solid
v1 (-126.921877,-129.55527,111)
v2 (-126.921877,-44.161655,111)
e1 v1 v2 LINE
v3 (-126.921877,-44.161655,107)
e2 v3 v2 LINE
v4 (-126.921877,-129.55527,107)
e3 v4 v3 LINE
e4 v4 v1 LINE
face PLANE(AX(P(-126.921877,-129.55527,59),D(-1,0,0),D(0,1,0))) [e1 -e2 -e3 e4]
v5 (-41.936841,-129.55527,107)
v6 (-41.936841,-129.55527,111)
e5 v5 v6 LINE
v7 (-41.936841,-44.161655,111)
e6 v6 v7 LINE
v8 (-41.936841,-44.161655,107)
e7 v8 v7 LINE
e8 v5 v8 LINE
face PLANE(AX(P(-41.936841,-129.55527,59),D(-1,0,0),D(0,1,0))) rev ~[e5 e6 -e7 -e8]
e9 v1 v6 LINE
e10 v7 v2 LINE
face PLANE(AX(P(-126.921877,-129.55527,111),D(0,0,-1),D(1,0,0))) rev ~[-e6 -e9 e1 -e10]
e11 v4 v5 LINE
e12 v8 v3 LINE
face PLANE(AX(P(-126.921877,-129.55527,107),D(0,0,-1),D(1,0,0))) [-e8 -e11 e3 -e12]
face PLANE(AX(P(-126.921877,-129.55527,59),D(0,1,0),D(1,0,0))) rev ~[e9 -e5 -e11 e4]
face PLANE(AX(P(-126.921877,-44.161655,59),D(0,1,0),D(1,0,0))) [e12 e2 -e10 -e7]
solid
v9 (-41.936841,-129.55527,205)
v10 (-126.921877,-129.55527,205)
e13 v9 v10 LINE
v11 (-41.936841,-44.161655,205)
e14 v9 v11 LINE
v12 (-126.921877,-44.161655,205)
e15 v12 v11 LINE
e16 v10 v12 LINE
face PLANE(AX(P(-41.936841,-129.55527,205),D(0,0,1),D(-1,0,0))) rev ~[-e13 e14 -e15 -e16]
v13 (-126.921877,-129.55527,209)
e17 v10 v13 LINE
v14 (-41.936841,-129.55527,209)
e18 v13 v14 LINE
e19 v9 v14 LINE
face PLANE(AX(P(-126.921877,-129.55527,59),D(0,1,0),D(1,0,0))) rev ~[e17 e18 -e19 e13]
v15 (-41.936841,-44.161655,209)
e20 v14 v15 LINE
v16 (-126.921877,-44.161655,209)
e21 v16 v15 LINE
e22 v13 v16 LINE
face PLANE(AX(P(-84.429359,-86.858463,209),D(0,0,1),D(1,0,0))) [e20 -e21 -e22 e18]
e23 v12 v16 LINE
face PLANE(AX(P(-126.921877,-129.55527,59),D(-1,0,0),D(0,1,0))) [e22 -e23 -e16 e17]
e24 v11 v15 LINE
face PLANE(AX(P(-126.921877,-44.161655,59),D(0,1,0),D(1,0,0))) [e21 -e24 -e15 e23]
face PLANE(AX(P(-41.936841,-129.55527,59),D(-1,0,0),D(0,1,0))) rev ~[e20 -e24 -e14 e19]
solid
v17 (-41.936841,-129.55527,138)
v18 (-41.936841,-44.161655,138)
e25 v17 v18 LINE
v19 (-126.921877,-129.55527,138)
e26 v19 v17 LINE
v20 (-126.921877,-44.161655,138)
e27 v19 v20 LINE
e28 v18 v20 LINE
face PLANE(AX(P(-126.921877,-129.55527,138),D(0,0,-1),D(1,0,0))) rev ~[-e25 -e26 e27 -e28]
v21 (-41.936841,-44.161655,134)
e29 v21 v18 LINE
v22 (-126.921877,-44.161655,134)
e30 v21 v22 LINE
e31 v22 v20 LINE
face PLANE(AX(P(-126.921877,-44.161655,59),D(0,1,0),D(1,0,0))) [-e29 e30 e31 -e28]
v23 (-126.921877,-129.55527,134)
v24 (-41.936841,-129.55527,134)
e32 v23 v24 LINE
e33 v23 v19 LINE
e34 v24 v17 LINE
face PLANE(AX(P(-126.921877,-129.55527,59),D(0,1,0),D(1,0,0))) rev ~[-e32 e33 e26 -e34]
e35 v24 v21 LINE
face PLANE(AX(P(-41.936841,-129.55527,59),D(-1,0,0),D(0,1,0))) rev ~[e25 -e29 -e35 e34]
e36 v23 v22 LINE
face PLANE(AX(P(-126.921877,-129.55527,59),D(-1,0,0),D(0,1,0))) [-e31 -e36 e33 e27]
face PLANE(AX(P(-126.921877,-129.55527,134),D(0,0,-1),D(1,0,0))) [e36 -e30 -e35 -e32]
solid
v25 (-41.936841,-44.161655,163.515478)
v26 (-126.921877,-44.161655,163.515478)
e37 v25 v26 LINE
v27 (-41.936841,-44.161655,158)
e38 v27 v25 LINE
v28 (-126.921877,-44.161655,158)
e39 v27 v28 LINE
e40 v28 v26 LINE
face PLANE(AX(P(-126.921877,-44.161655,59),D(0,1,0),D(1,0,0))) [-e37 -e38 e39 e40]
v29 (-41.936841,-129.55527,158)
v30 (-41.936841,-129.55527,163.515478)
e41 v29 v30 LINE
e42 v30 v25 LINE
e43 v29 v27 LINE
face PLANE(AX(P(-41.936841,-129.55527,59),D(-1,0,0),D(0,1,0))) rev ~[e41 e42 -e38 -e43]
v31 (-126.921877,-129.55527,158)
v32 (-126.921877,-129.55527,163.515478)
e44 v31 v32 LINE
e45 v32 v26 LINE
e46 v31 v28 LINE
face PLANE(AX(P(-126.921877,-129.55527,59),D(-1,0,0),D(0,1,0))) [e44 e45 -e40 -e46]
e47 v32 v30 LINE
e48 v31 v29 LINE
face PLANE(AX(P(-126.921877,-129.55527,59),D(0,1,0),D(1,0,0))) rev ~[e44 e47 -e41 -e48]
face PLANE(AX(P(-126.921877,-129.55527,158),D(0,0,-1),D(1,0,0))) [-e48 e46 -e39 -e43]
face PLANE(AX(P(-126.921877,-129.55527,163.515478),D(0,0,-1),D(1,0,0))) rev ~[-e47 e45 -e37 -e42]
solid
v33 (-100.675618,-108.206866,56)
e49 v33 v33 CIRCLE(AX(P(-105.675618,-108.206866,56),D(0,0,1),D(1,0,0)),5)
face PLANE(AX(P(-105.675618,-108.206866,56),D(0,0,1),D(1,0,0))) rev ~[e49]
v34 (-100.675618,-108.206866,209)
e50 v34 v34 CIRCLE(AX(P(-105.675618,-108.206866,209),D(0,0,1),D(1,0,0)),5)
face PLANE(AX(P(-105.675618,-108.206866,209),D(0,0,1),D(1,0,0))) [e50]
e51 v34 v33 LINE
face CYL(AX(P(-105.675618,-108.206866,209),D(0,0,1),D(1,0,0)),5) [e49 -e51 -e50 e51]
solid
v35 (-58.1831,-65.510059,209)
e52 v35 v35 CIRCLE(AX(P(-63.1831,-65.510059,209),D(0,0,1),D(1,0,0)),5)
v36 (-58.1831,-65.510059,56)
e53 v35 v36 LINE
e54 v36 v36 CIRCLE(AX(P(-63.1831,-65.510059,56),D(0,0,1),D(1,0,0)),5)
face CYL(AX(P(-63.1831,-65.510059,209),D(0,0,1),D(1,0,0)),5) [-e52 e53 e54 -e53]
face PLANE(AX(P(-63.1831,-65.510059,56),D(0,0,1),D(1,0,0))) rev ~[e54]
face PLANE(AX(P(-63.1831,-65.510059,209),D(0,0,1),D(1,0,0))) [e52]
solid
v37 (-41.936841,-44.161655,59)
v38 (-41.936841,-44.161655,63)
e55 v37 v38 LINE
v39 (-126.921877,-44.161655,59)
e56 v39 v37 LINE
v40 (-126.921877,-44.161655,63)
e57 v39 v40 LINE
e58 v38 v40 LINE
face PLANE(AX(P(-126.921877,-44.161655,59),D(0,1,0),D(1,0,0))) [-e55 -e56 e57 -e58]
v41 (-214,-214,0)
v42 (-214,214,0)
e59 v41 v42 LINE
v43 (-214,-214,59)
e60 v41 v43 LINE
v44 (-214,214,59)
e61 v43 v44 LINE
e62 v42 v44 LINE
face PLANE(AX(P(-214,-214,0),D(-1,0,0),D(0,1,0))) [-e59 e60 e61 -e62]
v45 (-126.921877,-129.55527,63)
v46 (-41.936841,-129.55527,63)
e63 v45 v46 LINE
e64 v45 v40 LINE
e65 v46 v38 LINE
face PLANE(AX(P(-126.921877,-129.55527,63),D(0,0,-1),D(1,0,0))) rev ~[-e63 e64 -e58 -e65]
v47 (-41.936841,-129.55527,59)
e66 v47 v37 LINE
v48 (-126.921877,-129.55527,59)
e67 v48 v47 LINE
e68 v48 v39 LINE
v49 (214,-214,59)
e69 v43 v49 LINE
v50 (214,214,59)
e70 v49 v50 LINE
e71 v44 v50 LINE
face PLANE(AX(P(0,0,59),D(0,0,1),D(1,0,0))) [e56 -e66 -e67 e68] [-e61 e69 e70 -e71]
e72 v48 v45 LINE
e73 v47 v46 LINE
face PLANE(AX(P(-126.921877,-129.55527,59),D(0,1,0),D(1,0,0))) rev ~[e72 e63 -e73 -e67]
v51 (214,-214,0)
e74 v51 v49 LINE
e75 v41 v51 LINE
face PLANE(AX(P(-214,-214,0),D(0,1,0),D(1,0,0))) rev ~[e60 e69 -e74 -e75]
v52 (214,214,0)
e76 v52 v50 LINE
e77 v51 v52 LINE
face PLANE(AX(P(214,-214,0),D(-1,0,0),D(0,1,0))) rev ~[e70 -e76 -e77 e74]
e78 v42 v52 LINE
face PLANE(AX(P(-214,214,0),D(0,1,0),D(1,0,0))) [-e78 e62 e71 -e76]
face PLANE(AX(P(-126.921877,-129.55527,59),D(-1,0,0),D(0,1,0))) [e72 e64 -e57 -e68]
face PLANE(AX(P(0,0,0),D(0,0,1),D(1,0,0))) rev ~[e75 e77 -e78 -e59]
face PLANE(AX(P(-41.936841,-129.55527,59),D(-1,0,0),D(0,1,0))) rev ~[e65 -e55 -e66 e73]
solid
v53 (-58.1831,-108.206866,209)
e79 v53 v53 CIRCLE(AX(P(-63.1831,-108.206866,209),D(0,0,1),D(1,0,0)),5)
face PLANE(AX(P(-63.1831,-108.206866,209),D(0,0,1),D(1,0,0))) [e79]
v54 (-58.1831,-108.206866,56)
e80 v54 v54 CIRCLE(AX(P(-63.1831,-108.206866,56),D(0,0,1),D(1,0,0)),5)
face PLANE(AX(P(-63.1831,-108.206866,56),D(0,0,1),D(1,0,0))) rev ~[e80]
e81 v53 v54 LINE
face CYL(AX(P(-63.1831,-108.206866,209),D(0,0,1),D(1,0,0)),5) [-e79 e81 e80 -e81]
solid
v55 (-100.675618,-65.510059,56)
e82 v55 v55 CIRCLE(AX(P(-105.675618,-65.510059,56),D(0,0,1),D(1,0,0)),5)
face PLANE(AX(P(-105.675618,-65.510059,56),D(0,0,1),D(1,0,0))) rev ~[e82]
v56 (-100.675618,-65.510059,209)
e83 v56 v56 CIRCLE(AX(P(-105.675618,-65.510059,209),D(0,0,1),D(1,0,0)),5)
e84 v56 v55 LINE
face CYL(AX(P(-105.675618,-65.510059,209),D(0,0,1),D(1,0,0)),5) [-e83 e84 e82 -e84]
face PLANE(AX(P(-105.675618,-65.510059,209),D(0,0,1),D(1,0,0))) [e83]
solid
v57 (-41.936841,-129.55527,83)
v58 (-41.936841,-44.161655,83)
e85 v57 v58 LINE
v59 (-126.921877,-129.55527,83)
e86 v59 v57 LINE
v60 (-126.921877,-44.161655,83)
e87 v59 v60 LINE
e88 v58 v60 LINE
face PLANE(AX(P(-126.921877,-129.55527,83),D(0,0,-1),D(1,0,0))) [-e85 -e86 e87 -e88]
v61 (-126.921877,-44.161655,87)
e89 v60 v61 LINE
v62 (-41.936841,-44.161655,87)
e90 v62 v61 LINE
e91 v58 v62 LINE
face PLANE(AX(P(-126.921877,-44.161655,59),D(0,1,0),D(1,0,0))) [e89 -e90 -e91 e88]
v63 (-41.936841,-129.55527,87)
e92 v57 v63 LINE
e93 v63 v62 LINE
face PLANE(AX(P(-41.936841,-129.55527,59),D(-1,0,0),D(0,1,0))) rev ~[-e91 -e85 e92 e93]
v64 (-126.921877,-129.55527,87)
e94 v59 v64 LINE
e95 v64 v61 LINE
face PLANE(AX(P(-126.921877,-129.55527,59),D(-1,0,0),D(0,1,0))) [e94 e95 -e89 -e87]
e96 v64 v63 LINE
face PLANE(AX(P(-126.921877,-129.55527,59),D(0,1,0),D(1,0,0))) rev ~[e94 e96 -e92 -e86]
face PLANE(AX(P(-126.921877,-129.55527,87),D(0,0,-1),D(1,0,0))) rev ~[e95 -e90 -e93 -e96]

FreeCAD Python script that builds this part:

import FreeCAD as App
import Part
import Sketcher

V = App.Vector
Q = App.Units.Quantity

doc = App.newDocument("Part")
body = doc.addObject("PartDesign::Body", "Body")
body.AllowCompound = True

# Sketch on XY plane
sketch1 = body.newObject("Sketcher::SketchObject", "Sketch")
sketch1.AttachmentSupport = (doc.getObject("XY_Plane"), [""])
sketch1.MapMode = "FlatFace"
sketch1.addGeometry([
    Part.LineSegment(V(-214, 214, 0), V(-214, -214, 0)),
    Part.LineSegment(V(-214, -214, 0), V(214, -214, 0)),
    Part.LineSegment(V(214, -214, 0), V(214, 214, 0)),
    Part.LineSegment(V(214, 214, 0), V(-214, 214, 0)),
], False)
sketch1.addConstraint([
    Sketcher.Constraint("Coincident", 0, 2, 1, 1),
    Sketcher.Constraint("Coincident", 1, 2, 2, 1),
    Sketcher.Constraint("Coincident", 2, 2, 3, 1),
    Sketcher.Constraint("Coincident", 3, 2, 0, 1),
    Sketcher.Constraint("Vertical", 0),
    Sketcher.Constraint("Horizontal", 1),
    Sketcher.Constraint("Vertical", 2),
    Sketcher.Constraint("Horizontal", 3),
    Sketcher.Constraint("Symmetric", 0, 2, 2, 2, -1, 1),
    Sketcher.Constraint("Equal", 3, 0),
    Sketcher.Constraint("DistanceX", 1, 1, 1, 2, Q("428 mm")),
])
pad1 = body.newObject("PartDesign::Pad", "Pad")
pad1.Profile = sketch1
pad1.Length = 59

# Sketch on XY plane
sketch2 = body.newObject("Sketcher::SketchObject", "Sketch001")
sketch2.AttachmentSupport = (doc.getObject("XY_Plane"), [""])
sketch2.MapMode = "FlatFace"
sketch2.AttachmentOffset = App.Placement(V(0, 0, 59), App.Rotation())
sketch2.addGeometry([
    Part.LineSegment(V(-126.921877, -44.161655, 0), V(-126.921877, -129.55527, 0)),
    Part.LineSegment(V(-126.921877, -129.55527, 0), V(-41.936841, -129.55527, 0)),
    Part.LineSegment(V(-41.936841, -129.55527, 0), V(-41.936841, -44.161655, 0)),
    Part.LineSegment(V(-41.936841, -44.161655, 0), V(-126.921877, -44.161655, 0)),
], False)
sketch2.addConstraint([
    Sketcher.Constraint("Coincident", 0, 2, 1, 1),
    Sketcher.Constraint("Coincident", 1, 2, 2, 1),
    Sketcher.Constraint("Coincident", 2, 2, 3, 1),
    Sketcher.Constraint("Coincident", 3, 2, 0, 1),
    Sketcher.Constraint("Vertical", 0),
    Sketcher.Constraint("Horizontal", 1),
    Sketcher.Constraint("Vertical", 2),
    Sketcher.Constraint("Horizontal", 3),
    Sketcher.Constraint("DistanceX", 1, 1, 1, 2, Q("84.985036 mm")),
    Sketcher.Constraint("DistanceY", 0, 2, 0, 1, Q("85.393615 mm")),
    Sketcher.Constraint("DistanceY", 0, 2, -1, 1, Q("129.55527 mm")),
    Sketcher.Constraint("DistanceX", 1, 2, -1, 1, Q("41.936841 mm")),
])
pad2 = body.newObject("PartDesign::Pad", "Pad001")
pad2.Profile = sketch2
pad2.Length = 150

# Sketch on XZ plane
sketch3 = body.newObject("Sketcher::SketchObject", "Sketch002")
sketch3.AttachmentSupport = (doc.getObject("XZ_Plane"), [""])
sketch3.MapMode = "FlatFace"
sketch3.AttachmentOffset = App.Placement(V(0, 0, 129.55527), App.Rotation())
sketch3.addGeometry([
    Part.LineSegment(V(-126.921877, 83, 0), V(-126.921877, 63, 0)),  # 0
    Part.LineSegment(V(-126.921877, 63, 0), V(-41.936841, 63, 0)),  # 1
    Part.LineSegment(V(-41.936841, 63, 0), V(-41.936841, 83, 0)),  # 2
    Part.LineSegment(V(-41.936841, 83, 0), V(-126.921877, 83, 0)),  # 3
    Part.LineSegment(V(-126.921877, 107, 0), V(-126.921877, 87, 0)),  # 4
    Part.LineSegment(V(-126.921877, 87, 0), V(-41.936841, 87, 0)),  # 5
    Part.LineSegment(V(-41.936841, 87, 0), V(-41.936841, 107, 0)),  # 6
    Part.LineSegment(V(-41.936841, 107, 0), V(-126.921877, 107, 0)),  # 7
    Part.LineSegment(V(-126.921877, 134, 0), V(-126.921877, 111, 0)),  # 8
    Part.LineSegment(V(-126.921877, 111, 0), V(-41.936841, 111, 0)),  # 9
    Part.LineSegment(V(-41.936841, 111, 0), V(-41.936841, 134, 0)),  # 10
    Part.LineSegment(V(-41.936841, 134, 0), V(-126.921877, 134, 0)),  # 11
    Part.LineSegment(V(-126.921877, 158, 0), V(-126.921877, 138, 0)),  # 12
    Part.LineSegment(V(-126.921877, 138, 0), V(-41.936841, 138, 0)),  # 13
    Part.LineSegment(V(-41.936841, 138, 0), V(-41.936841, 158, 0)),  # 14
    Part.LineSegment(V(-41.936841, 158, 0), V(-126.921877, 158, 0)),  # 15
    Part.LineSegment(V(-126.921877, 205, 0), V(-126.921877, 163.515478, 0)),  # 16
    Part.LineSegment(V(-126.921877, 163.515478, 0), V(-41.936841, 163.515478, 0)),  # 17
    Part.LineSegment(V(-41.936841, 163.515478, 0), V(-41.936841, 205, 0)),  # 18
    Part.LineSegment(V(-41.936841, 205, 0), V(-126.921877, 205, 0)),  # 19
], False)
sketch3.addConstraint([
    Sketcher.Constraint("Coincident", 0, 2, 1, 1),
    Sketcher.Constraint("Coincident", 1, 2, 2, 1),
    Sketcher.Constraint("Coincident", 2, 2, 3, 1),
    Sketcher.Constraint("Coincident", 3, 2, 0, 1),
    Sketcher.Constraint("Coincident", 4, 2, 5, 1),
    Sketcher.Constraint("Coincident", 5, 2, 6, 1),
    Sketcher.Constraint("Coincident", 6, 2, 7, 1),
    Sketcher.Constraint("Coincident", 7, 2, 4, 1),
    Sketcher.Constraint("Coincident", 8, 2, 9, 1),
    Sketcher.Constraint("Coincident", 9, 2, 10, 1),
    Sketcher.Constraint("Coincident", 10, 2, 11, 1),
    Sketcher.Constraint("Coincident", 11, 2, 8, 1),
    Sketcher.Constraint("Coincident", 12, 2, 13, 1),
    Sketcher.Constraint("Coincident", 13, 2, 14, 1),
    Sketcher.Constraint("Coincident", 14, 2, 15, 1),
    Sketcher.Constraint("Coincident", 15, 2, 12, 1),
    Sketcher.Constraint("Coincident", 16, 2, 17, 1),
    Sketcher.Constraint("Coincident", 17, 2, 18, 1),
    Sketcher.Constraint("Coincident", 18, 2, 19, 1),
    Sketcher.Constraint("Coincident", 19, 2, 16, 1),
    Sketcher.Constraint("Vertical", 0),
    Sketcher.Constraint("Horizontal", 1),
    Sketcher.Constraint("Vertical", 2),
    Sketcher.Constraint("Horizontal", 3),
    Sketcher.Constraint("Vertical", 4),
    Sketcher.Constraint("Horizontal", 5),
    Sketcher.Constraint("Vertical", 6),
    Sketcher.Constraint("Horizontal", 7),
    Sketcher.Constraint("Vertical", 8),
    Sketcher.Constraint("Horizontal", 9),
    Sketcher.Constraint("Vertical", 10),
    Sketcher.Constraint("Horizontal", 11),
    Sketcher.Constraint("Vertical", 12),
    Sketcher.Constraint("Horizontal", 13),
    Sketcher.Constraint("Vertical", 14),
    Sketcher.Constraint("Horizontal", 15),
    Sketcher.Constraint("Vertical", 16),
    Sketcher.Constraint("Horizontal", 17),
    Sketcher.Constraint("Vertical", 18),
    Sketcher.Constraint("Horizontal", 19),
    Sketcher.Constraint("Vertical", 3, 2, 4, 2),
    Sketcher.Constraint("Vertical", 2, 2, 5, 2),
    Sketcher.Constraint("Vertical", 7, 2, 8, 2),
    Sketcher.Constraint("Vertical", 6, 2, 9, 2),
    Sketcher.Constraint("Vertical", 11, 2, 12, 2),
    Sketcher.Constraint("Vertical", 10, 2, 13, 2),
    Sketcher.Constraint("Vertical", 15, 2, 16, 2),
    Sketcher.Constraint("Vertical", 14, 2, 17, 2),
    Sketcher.Constraint("Equal", 2, 4),
    Sketcher.Constraint("Equal", 6, 12),
    Sketcher.Constraint("DistanceY", 0, 2, 0, 1, Q("20 mm")),
    Sketcher.Constraint("DistanceY", 8, 2, 8, 1, Q("23 mm")),
    Sketcher.Constraint("DistanceY", -1, 1, 0, 2, Q("63 mm")),
    Sketcher.Constraint("DistanceY", -1, 1, 4, 2, Q("87 mm")),
    Sketcher.Constraint("DistanceY", -1, 1, 8, 2, Q("111 mm")),
    Sketcher.Constraint("DistanceY", -1, 1, 12, 2, Q("138 mm")),
    Sketcher.Constraint("DistanceY", -1, 1, 18, 2, Q("205 mm")),
    Sketcher.Constraint("DistanceY", 16, 2, 16, 1, Q("41.484522 mm")),
    Sketcher.Constraint("DistanceX", 1, 1, 1, 2, Q("84.985036 mm")),
    Sketcher.Constraint("DistanceX", 1, 2, -1, 1, Q("41.936841 mm")),
])
pocket1 = body.newObject("PartDesign::Pocket", "Pocket")
pocket1.Profile = sketch3
pocket1.Length = 100
body2 = doc.addObject("PartDesign::Body", "Body001")

# Sketch on XY plane
sketch4 = body2.newObject("Sketcher::SketchObject", "Sketch003")
sketch4.AttachmentSupport = (doc.getObject("XY_Plane001"), [""])
sketch4.MapMode = "FlatFace"
sketch4.AttachmentOffset = App.Placement(V(0, 0, 209), App.Rotation())
sketch4.addGeometry(Part.Circle(V(-105.675618, -65.510059, 0), V(0, 0, 1), 5), False)
sketch4.addConstraint([
    Sketcher.Constraint("Diameter", 0, Q("10 mm")),
    Sketcher.Constraint("DistanceX", 0, 3, -1, 1, Q("105.675618 mm")),
    Sketcher.Constraint("DistanceY", 0, 3, -1, 1, Q("65.510059 mm")),
])
pad3 = body2.newObject("PartDesign::Pad", "Pad002")
pad3.Profile = sketch4
pad3.Length = 153
pad3.Reversed = True
body3 = doc.addObject("PartDesign::Body", "Body002")

# Sketch on XY plane
sketch5 = body3.newObject("Sketcher::SketchObject", "Sketch004")
sketch5.AttachmentSupport = (doc.getObject("XY_Plane002"), [""])
sketch5.MapMode = "FlatFace"
sketch5.AttachmentOffset = App.Placement(V(0, 0, 209), App.Rotation())
sketch5.addGeometry(Part.Circle(V(-105.675618, -108.206866, 0), V(0, 0, 1), 5), False)
sketch5.addConstraint([
    Sketcher.Constraint("Diameter", 0, Q("10 mm")),
    Sketcher.Constraint("DistanceX", 0, 3, -1, 1, Q("105.675618 mm")),
    Sketcher.Constraint("DistanceY", 0, 3, -1, 1, Q("108.206866 mm")),
])
pad4 = body3.newObject("PartDesign::Pad", "Pad003")
pad4.Profile = sketch5
pad4.Length = 153
pad4.Reversed = True
body4 = doc.addObject("PartDesign::Body", "Body003")

# Sketch on XY plane
sketch6 = body4.newObject("Sketcher::SketchObject", "Sketch005")
sketch6.AttachmentSupport = (doc.getObject("XY_Plane003"), [""])
sketch6.MapMode = "FlatFace"
sketch6.AttachmentOffset = App.Placement(V(0, 0, 209), App.Rotation())
sketch6.addGeometry(Part.Circle(V(-63.1831, -108.206866, 0), V(0, 0, 1), 5), False)
sketch6.addConstraint([
    Sketcher.Constraint("Diameter", 0, Q("10 mm")),
    Sketcher.Constraint("DistanceX", 0, 3, -1, 1, Q("63.1831 mm")),
    Sketcher.Constraint("DistanceY", 0, 3, -1, 1, Q("108.206866 mm")),
])
pad5 = body4.newObject("PartDesign::Pad", "Pad004")
pad5.Profile = sketch6
pad5.Length = 153
pad5.Reversed = True
body5 = doc.addObject("PartDesign::Body", "Body004")

# Sketch on XY plane
sketch7 = body5.newObject("Sketcher::SketchObject", "Sketch006")
sketch7.AttachmentSupport = (doc.getObject("XY_Plane004"), [""])
sketch7.MapMode = "FlatFace"
sketch7.AttachmentOffset = App.Placement(V(0, 0, 209), App.Rotation())
sketch7.addGeometry(Part.Circle(V(-63.1831, -65.510059, 0), V(0, 0, 1), 5), False)
sketch7.addConstraint([
    Sketcher.Constraint("Diameter", 0, Q("10 mm")),
    Sketcher.Constraint("DistanceX", 0, 3, -1, 1, Q("63.1831 mm")),
    Sketcher.Constraint("DistanceY", 0, 3, -1, 1, Q("65.510059 mm")),
])
pad6 = body5.newObject("PartDesign::Pad", "Pad005")
pad6.Profile = sketch7
pad6.Length = 153
pad6.Reversed = True

doc.recompute()
